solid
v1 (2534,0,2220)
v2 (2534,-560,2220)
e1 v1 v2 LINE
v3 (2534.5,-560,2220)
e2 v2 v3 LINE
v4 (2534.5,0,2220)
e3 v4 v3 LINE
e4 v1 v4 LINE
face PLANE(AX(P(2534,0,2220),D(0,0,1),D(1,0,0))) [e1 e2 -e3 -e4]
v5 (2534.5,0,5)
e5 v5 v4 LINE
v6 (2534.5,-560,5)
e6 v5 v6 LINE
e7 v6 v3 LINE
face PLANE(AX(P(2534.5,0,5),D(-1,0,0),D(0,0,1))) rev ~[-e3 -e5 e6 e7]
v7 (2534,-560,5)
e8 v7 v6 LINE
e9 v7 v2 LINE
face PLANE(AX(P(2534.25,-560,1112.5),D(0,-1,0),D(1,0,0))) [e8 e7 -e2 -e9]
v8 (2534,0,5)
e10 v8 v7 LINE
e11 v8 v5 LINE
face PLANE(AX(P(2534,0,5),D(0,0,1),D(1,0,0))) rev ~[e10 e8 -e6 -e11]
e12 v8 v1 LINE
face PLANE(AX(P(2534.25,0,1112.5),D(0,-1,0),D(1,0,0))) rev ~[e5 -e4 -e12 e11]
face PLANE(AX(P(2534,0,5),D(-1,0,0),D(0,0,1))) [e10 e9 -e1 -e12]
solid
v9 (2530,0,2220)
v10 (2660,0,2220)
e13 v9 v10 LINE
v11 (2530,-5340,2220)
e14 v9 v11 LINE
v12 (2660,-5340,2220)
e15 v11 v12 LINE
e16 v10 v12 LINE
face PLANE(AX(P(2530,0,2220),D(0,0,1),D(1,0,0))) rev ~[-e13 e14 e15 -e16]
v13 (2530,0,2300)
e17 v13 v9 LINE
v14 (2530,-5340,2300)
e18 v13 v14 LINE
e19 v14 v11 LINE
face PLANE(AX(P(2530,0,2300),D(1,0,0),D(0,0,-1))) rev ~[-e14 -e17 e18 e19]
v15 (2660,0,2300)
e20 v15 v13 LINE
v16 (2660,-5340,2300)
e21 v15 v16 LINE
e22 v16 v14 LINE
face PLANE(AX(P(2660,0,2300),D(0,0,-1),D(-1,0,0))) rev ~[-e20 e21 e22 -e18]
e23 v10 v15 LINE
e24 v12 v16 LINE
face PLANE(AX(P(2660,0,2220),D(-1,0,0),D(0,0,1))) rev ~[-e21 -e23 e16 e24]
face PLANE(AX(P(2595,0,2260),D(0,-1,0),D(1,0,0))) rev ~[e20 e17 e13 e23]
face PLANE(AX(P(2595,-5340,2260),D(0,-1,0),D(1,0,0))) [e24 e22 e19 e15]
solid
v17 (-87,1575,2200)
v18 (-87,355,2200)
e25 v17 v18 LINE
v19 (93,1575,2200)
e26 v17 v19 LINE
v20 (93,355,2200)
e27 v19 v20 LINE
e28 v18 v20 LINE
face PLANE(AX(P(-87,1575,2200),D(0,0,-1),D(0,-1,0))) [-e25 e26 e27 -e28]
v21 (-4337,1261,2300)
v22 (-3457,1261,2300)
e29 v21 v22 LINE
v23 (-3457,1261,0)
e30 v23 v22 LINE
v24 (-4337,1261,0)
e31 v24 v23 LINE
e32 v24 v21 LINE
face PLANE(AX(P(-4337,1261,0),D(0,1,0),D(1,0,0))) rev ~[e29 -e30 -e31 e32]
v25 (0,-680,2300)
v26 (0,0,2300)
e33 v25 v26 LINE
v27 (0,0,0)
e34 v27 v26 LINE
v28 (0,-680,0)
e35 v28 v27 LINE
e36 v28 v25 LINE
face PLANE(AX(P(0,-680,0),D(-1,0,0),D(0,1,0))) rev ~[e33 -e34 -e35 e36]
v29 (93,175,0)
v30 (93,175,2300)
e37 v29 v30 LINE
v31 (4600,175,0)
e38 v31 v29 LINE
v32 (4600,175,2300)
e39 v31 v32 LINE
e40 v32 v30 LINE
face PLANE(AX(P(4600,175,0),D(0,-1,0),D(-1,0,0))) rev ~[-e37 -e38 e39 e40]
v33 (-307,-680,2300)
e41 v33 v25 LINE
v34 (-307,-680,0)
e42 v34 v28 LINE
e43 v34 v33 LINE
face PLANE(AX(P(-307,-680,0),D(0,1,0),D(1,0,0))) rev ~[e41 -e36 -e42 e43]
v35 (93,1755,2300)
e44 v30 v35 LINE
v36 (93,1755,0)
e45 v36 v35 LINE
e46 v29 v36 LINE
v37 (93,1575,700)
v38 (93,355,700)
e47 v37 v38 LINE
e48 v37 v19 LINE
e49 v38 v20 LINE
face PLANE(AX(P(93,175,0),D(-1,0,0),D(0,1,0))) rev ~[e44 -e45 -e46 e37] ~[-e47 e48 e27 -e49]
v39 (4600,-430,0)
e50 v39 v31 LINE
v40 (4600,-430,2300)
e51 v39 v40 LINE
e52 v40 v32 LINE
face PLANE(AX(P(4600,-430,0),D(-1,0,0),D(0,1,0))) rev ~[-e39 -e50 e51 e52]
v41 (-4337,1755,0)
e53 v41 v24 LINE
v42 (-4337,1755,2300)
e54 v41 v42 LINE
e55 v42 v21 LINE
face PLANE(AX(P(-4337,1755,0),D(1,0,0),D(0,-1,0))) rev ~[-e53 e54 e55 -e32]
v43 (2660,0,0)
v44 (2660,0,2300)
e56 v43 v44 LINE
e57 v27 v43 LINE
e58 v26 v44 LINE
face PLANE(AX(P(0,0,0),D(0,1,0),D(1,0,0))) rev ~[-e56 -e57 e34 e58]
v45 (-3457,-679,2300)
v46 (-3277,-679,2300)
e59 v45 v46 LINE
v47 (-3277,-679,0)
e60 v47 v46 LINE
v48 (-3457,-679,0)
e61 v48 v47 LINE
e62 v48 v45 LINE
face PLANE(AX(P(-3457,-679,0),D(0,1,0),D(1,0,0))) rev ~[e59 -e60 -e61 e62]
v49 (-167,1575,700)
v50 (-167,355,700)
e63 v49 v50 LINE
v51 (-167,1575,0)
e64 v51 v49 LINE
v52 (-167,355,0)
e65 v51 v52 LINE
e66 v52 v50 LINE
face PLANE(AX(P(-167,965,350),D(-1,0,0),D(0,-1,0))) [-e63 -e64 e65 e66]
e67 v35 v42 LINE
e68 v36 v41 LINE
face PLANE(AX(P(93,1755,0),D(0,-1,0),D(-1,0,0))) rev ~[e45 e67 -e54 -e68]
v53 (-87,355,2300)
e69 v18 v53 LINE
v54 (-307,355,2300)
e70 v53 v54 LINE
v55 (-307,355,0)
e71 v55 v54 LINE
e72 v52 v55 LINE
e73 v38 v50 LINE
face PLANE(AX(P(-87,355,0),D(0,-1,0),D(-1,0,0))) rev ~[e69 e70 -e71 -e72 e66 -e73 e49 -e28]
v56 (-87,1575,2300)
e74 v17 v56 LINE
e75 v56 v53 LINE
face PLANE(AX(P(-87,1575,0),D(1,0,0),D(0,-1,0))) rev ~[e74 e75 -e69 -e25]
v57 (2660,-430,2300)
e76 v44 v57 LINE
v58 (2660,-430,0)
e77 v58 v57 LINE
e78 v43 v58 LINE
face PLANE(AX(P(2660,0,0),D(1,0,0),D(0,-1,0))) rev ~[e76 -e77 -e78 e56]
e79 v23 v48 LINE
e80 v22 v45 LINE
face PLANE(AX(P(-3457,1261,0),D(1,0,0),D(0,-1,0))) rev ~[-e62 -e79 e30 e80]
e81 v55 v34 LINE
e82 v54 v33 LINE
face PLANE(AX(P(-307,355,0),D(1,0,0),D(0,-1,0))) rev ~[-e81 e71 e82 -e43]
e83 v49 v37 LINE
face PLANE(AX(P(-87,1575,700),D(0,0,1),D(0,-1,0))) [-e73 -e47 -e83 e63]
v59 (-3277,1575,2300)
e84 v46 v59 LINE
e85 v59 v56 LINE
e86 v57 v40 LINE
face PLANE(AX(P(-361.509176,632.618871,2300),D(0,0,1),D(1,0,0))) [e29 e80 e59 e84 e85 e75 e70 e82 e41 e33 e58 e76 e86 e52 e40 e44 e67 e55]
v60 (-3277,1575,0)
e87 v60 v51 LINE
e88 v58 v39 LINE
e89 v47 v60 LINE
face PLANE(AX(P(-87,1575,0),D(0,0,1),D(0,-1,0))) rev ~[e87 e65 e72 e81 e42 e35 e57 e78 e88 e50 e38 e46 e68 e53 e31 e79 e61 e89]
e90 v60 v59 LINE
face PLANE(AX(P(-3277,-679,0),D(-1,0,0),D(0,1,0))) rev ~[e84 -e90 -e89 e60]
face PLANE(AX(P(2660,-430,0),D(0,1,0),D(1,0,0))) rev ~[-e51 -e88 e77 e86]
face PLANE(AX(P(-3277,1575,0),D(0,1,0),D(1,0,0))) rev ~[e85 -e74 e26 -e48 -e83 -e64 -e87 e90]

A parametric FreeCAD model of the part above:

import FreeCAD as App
import Part
import Sketcher
from FreeCAD import Vector
Q = App.Units.Quantity


def add_polygon(sketch, points):
    """Adds a closed chain of lines whose ends are joined by coincident constraints."""
    first, n = sketch.GeometryCount, len(points)
    for a, b in zip(points, points[1:] + points[:1]):
        sketch.addGeometry(Part.LineSegment(App.Vector(*a, 0), App.Vector(*b, 0)), False)
    for i in range(n):
        sketch.addConstraint(Sketcher.Constraint("Coincident", first + i, 2, first + (i + 1) % n, 1))

doc = App.newDocument("Part")
body = doc.addObject("PartDesign::Body", "Body")

# Sketch on XY plane
sketch1 = doc.addObject("Sketcher::SketchObject", "Sketch")
body.addObject(sketch1)
sketch1.AttachmentSupport = (doc.XY_Plane, [""])
sketch1.MapMode = "FlatFace"
add_polygon(sketch1, [(-87, 355), (-307, 355), (-307, -680), (0, -680), (0, 0), (2660, 0), (2660, -430), (4600, -430), (4600, 175), (93, 175), (93, 1755), (-4337, 1755), (-4337, 1261), (-3457, 1261), (-3457, -679), (-3277, -679), (-3277, 1575), (-87, 1575)])  # lines 0-17
sketch1.addConstraint(Sketcher.Constraint("Horizontal", 0))
sketch1.addConstraint(Sketcher.Constraint("Vertical", 1))
sketch1.addConstraint(Sketcher.Constraint("Horizontal", 2))
sketch1.addConstraint(Sketcher.Constraint("Vertical", 3))
sketch1.addConstraint(Sketcher.Constraint("Horizontal", 4))
sketch1.addConstraint(Sketcher.Constraint("Vertical", 5))
sketch1.addConstraint(Sketcher.Constraint("Horizontal", 6))
sketch1.addConstraint(Sketcher.Constraint("Vertical", 7))
sketch1.addConstraint(Sketcher.Constraint("Horizontal", 8))
sketch1.addConstraint(Sketcher.Constraint("Vertical", 9))
sketch1.addConstraint(Sketcher.Constraint("Horizontal", 10))
sketch1.addConstraint(Sketcher.Constraint("Vertical", 11))
sketch1.addConstraint(Sketcher.Constraint("Horizontal", 12))
sketch1.addConstraint(Sketcher.Constraint("Vertical", 13))
sketch1.addConstraint(Sketcher.Constraint("Horizontal", 14))
sketch1.addConstraint(Sketcher.Constraint("Vertical", 15))
sketch1.addConstraint(Sketcher.Constraint("Horizontal", 16))
sketch1.addConstraint(Sketcher.Constraint("Vertical", 17))
sketch1.addConstraint(Sketcher.Constraint("Coincident", 3, 2, -1, 1))
sketch1.addConstraint(Sketcher.Constraint("Equal", 6, 13))
sketch1.addConstraint(Sketcher.Constraint("DistanceX", 0, 2, 0, 1, Q("220 mm")))
sketch1.addConstraint(Sketcher.Constraint("DistanceX", 2, 1, 2, 2, Q("307 mm")))
sketch1.addConstraint(Sketcher.Constraint("DistanceX", 4, 1, 4, 2, Q("2660 mm")))
sketch1.addConstraint(Sketcher.Constraint("DistanceX", 6, 1, 6, 2, Q("1940 mm")))
sketch1.addConstraint(Sketcher.Constraint("DistanceX", 8, 2, 8, 1, Q("4507 mm")))
sketch1.addConstraint(Sketcher.Constraint("DistanceX", 10, 2, 10, 1, Q("4430 mm")))
sketch1.addConstraint(Sketcher.Constraint("DistanceX", 12, 1, 12, 2, Q("880 mm")))
sketch1.addConstraint(Sketcher.Constraint("DistanceX", 14, 1, 14, 2, Q("180 mm")))
sketch1.addConstraint(Sketcher.Constraint("DistanceY", 1, 2, 1, 1, Q("1035 mm")))
sketch1.addConstraint(Sketcher.Constraint("DistanceY", 3, 1, 3, 2, Q("680 mm")))
sketch1.addConstraint(Sketcher.Constraint("DistanceY", 5, 2, 5, 1, Q("430 mm")))
sketch1.addConstraint(Sketcher.Constraint("DistanceY", 7, 1, 7, 2, Q("605 mm")))
sketch1.addConstraint(Sketcher.Constraint("DistanceY", 9, 1, 9, 2, Q("1580 mm")))
sketch1.addConstraint(Sketcher.Constraint("DistanceY", 11, 2, 11, 1, Q("494 mm")))
sketch1.addConstraint(Sketcher.Constraint("DistanceY", 15, 1, 15, 2, Q("2254 mm")))
pad1 = doc.addObject("PartDesign::Pad", "Pad")
body.addObject(pad1)
pad1.Profile = sketch1
pad1.Length = 2300

# Sketch on YZ plane
sketch2 = doc.addObject("Sketcher::SketchObject", "Sketch001")
body.addObject(sketch2)
sketch2.AttachmentSupport = (doc.YZ_Plane, [""])
sketch2.MapMode = "FlatFace"
sketch2.AttachmentOffset = App.Placement(Vector(0, 0, -87), App.Rotation())
add_polygon(sketch2, [(1575, 700), (1575, 0), (355, 0), (355, 700)])  # lines 0-3
sketch2.addConstraint(Sketcher.Constraint("Vertical", 0))
sketch2.addConstraint(Sketcher.Constraint("Horizontal", 1))
sketch2.addConstraint(Sketcher.Constraint("Vertical", 2))
sketch2.addConstraint(Sketcher.Constraint("Horizontal", 3))
sketch2.addConstraint(Sketcher.Constraint("PointOnObject", 0, 2, -1))
sketch2.addConstraint(Sketcher.Constraint("DistanceX", 1, 2, 1, 1, Q("1220 mm")))
sketch2.addConstraint(Sketcher.Constraint("DistanceY", 0, 2, 0, 1, Q("700 mm")))
sketch2.addConstraint(Sketcher.Constraint("DistanceX", -1, 1, 0, 2, Q("1575 mm")))
pad2 = doc.addObject("PartDesign::Pad", "Pad001")
body.addObject(pad2)
pad2.Profile = sketch2
pad2.Length = 80
pad2.Reversed = True

# Sketch on YZ plane
sketch3 = doc.addObject("Sketcher::SketchObject", "Sketch002")
body.addObject(sketch3)
sketch3.AttachmentSupport = (doc.YZ_Plane, [""])
sketch3.MapMode = "FlatFace"
sketch3.AttachmentOffset = App.Placement(Vector(0, 0, -87), App.Rotation())
add_polygon(sketch3, [(1575, 2200), (1575, 700), (355, 700), (355, 2200)])  # lines 0-3
sketch3.addConstraint(Sketcher.Constraint("Vertical", 0))
sketch3.addConstraint(Sketcher.Constraint("Horizontal", 1))
sketch3.addConstraint(Sketcher.Constraint("Vertical", 2))
sketch3.addConstraint(Sketcher.Constraint("Horizontal", 3))
sketch3.addConstraint(Sketcher.Constraint("DistanceX", 1, 2, 1, 1, Q("1220 mm")))
sketch3.addConstraint(Sketcher.Constraint("DistanceY", 0, 2, 0, 1, Q("1500 mm")))
sketch3.addConstraint(Sketcher.Constraint("DistanceX", -1, 1, 0, 2, Q("1575 mm")))
sketch3.addConstraint(Sketcher.Constraint("DistanceY", -1, 1, 0, 2, Q("700 mm")))
pocket1 = doc.addObject("PartDesign::Pocket", "Pocket")
body.addObject(pocket1)
pocket1.Profile = sketch3
pocket1.Type = "ThroughAll"
pocket1.Reversed = True
body2 = doc.addObject("PartDesign::Body", "Body001")

# Sketch on XZ plane
sketch4 = doc.addObject("Sketcher::SketchObject", "Sketch003")
body2.addObject(sketch4)
sketch4.AttachmentSupport = (doc.getObject("XZ_Plane001"), [""])
sketch4.MapMode = "FlatFace"
add_polygon(sketch4, [(2660, 2220), (2660, 2300), (2530, 2300), (2530, 2220)])  # lines 0-3
sketch4.addConstraint(Sketcher.Constraint("Vertical", 0))
sketch4.addConstraint(Sketcher.Constraint("Horizontal", 1))
sketch4.addConstraint(Sketcher.Constraint("Vertical", 2))
sketch4.addConstraint(Sketcher.Constraint("Horizontal", 3))
sketch4.addConstraint(Sketcher.Constraint("DistanceX", 1, 2, 1, 1, Q("130 mm")))
sketch4.addConstraint(Sketcher.Constraint("DistanceY", 0, 1, 0, 2, Q("80 mm")))
sketch4.addConstraint(Sketcher.Constraint("DistanceX", -1, 1, 0, 2, Q("2660 mm")))
sketch4.addConstraint(Sketcher.Constraint("DistanceY", -1, 1, 0, 2, Q("2300 mm")))
pad3 = doc.addObject("PartDesign::Pad", "Pad002")
body2.addObject(pad3)
pad3.Profile = sketch4
pad3.Length = 5340
body3 = doc.addObject("PartDesign::Body", "Body002")

# Sketch on XZ plane
sketch5 = doc.addObject("Sketcher::SketchObject", "Sketch004")
body3.addObject(sketch5)
sketch5.AttachmentSupport = (doc.getObject("XZ_Plane002"), [""])
sketch5.MapMode = "FlatFace"
add_polygon(sketch5, [(2534, 2220), (2534, 5), (2534.5, 5), (2534.5, 2220)])  # lines 0-3
sketch5.addConstraint(Sketcher.Constraint("Vertical", 0))
sketch5.addConstraint(Sketcher.Constraint("Horizontal", 1))
sketch5.addConstraint(Sketcher.Constraint("Vertical", 2))
sketch5.addConstraint(Sketcher.Constraint("Horizontal", 3))
sketch5.addConstraint(Sketcher.Constraint("DistanceY", 0, 2, 0, 1, Q("2215 mm")))
sketch5.addConstraint(Sketcher.Constraint("DistanceX", 1, 1, 1, 2, Q("0.5 mm")))
sketch5.addConstraint(Sketcher.Constraint("DistanceX", -1, 1, 0, 2, Q("2534 mm")))
sketch5.addConstraint(Sketcher.Constraint("DistanceY", -1, 1, 0, 2, Q("5 mm")))
pad4 = doc.addObject("PartDesign::Pad", "Pad003")
body3.addObject(pad4)
pad4.Profile = sketch5
pad4.Length = 560

doc.recompute()
